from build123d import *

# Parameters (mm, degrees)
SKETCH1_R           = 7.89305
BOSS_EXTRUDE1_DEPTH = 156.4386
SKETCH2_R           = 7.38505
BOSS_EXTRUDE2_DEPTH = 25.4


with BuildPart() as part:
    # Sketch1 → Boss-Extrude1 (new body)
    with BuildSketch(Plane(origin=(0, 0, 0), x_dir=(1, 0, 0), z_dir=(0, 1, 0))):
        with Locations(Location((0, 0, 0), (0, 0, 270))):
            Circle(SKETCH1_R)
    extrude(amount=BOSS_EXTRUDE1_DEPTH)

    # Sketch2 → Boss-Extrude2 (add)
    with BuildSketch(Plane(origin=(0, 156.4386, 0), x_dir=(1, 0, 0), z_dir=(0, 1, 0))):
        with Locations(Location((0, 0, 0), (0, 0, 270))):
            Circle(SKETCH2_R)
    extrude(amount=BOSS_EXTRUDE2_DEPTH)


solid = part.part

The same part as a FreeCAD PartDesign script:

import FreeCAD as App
import Part
import Sketcher
Q = App.Units.Quantity

doc = App.newDocument("Part")
body = doc.addObject("PartDesign::Body", "Body")

# Sketch on XZ plane
sketch1 = body.newObject("Sketcher::SketchObject", "Sketch")
sketch1.AttachmentSupport = (doc.getObject("XZ_Plane"), [""])
sketch1.MapMode = "FlatFace"
sketch1.addGeometry(Part.Circle(App.Vector(0, 0, 0), App.Vector(0, 0, 1), 8), False)
sketch1.addConstraint(Sketcher.Constraint("Coincident", 0, 3, -1, 1))
sketch1.addConstraint(Sketcher.Constraint("Diameter", 0, Q("0.6215 in")))
pad1 = body.newObject("PartDesign::Pad", "Pad")
pad1.Profile = sketch1
pad1.Length = Q("6.159 in")
pad1.Reversed = True

# Sketch on XZ plane
sketch2 = body.newObject("Sketcher::SketchObject", "Sketch001")
sketch2.AttachmentSupport = (doc.getObject("XZ_Plane"), [""])
sketch2.MapMode = "FlatFace"
sketch2.AttachmentOffset = App.Placement(App.Vector(0, 0, -6.159 * 25.4), App.Rotation())
sketch2.addGeometry(Part.Circle(App.Vector(0, 0, 0), App.Vector(0, 0, 1), 7), False)
sketch2.addConstraint(Sketcher.Constraint("Coincident", 0, 3, -1, 1))
sketch2.addConstraint(Sketcher.Constraint("Diameter", 0, Q("0.5815 in")))
pad2 = body.newObject("PartDesign::Pad", "Pad001")
pad2.Profile = sketch2
pad2.Length = Q("1 in")
pad2.Reversed = True

doc.recompute()
